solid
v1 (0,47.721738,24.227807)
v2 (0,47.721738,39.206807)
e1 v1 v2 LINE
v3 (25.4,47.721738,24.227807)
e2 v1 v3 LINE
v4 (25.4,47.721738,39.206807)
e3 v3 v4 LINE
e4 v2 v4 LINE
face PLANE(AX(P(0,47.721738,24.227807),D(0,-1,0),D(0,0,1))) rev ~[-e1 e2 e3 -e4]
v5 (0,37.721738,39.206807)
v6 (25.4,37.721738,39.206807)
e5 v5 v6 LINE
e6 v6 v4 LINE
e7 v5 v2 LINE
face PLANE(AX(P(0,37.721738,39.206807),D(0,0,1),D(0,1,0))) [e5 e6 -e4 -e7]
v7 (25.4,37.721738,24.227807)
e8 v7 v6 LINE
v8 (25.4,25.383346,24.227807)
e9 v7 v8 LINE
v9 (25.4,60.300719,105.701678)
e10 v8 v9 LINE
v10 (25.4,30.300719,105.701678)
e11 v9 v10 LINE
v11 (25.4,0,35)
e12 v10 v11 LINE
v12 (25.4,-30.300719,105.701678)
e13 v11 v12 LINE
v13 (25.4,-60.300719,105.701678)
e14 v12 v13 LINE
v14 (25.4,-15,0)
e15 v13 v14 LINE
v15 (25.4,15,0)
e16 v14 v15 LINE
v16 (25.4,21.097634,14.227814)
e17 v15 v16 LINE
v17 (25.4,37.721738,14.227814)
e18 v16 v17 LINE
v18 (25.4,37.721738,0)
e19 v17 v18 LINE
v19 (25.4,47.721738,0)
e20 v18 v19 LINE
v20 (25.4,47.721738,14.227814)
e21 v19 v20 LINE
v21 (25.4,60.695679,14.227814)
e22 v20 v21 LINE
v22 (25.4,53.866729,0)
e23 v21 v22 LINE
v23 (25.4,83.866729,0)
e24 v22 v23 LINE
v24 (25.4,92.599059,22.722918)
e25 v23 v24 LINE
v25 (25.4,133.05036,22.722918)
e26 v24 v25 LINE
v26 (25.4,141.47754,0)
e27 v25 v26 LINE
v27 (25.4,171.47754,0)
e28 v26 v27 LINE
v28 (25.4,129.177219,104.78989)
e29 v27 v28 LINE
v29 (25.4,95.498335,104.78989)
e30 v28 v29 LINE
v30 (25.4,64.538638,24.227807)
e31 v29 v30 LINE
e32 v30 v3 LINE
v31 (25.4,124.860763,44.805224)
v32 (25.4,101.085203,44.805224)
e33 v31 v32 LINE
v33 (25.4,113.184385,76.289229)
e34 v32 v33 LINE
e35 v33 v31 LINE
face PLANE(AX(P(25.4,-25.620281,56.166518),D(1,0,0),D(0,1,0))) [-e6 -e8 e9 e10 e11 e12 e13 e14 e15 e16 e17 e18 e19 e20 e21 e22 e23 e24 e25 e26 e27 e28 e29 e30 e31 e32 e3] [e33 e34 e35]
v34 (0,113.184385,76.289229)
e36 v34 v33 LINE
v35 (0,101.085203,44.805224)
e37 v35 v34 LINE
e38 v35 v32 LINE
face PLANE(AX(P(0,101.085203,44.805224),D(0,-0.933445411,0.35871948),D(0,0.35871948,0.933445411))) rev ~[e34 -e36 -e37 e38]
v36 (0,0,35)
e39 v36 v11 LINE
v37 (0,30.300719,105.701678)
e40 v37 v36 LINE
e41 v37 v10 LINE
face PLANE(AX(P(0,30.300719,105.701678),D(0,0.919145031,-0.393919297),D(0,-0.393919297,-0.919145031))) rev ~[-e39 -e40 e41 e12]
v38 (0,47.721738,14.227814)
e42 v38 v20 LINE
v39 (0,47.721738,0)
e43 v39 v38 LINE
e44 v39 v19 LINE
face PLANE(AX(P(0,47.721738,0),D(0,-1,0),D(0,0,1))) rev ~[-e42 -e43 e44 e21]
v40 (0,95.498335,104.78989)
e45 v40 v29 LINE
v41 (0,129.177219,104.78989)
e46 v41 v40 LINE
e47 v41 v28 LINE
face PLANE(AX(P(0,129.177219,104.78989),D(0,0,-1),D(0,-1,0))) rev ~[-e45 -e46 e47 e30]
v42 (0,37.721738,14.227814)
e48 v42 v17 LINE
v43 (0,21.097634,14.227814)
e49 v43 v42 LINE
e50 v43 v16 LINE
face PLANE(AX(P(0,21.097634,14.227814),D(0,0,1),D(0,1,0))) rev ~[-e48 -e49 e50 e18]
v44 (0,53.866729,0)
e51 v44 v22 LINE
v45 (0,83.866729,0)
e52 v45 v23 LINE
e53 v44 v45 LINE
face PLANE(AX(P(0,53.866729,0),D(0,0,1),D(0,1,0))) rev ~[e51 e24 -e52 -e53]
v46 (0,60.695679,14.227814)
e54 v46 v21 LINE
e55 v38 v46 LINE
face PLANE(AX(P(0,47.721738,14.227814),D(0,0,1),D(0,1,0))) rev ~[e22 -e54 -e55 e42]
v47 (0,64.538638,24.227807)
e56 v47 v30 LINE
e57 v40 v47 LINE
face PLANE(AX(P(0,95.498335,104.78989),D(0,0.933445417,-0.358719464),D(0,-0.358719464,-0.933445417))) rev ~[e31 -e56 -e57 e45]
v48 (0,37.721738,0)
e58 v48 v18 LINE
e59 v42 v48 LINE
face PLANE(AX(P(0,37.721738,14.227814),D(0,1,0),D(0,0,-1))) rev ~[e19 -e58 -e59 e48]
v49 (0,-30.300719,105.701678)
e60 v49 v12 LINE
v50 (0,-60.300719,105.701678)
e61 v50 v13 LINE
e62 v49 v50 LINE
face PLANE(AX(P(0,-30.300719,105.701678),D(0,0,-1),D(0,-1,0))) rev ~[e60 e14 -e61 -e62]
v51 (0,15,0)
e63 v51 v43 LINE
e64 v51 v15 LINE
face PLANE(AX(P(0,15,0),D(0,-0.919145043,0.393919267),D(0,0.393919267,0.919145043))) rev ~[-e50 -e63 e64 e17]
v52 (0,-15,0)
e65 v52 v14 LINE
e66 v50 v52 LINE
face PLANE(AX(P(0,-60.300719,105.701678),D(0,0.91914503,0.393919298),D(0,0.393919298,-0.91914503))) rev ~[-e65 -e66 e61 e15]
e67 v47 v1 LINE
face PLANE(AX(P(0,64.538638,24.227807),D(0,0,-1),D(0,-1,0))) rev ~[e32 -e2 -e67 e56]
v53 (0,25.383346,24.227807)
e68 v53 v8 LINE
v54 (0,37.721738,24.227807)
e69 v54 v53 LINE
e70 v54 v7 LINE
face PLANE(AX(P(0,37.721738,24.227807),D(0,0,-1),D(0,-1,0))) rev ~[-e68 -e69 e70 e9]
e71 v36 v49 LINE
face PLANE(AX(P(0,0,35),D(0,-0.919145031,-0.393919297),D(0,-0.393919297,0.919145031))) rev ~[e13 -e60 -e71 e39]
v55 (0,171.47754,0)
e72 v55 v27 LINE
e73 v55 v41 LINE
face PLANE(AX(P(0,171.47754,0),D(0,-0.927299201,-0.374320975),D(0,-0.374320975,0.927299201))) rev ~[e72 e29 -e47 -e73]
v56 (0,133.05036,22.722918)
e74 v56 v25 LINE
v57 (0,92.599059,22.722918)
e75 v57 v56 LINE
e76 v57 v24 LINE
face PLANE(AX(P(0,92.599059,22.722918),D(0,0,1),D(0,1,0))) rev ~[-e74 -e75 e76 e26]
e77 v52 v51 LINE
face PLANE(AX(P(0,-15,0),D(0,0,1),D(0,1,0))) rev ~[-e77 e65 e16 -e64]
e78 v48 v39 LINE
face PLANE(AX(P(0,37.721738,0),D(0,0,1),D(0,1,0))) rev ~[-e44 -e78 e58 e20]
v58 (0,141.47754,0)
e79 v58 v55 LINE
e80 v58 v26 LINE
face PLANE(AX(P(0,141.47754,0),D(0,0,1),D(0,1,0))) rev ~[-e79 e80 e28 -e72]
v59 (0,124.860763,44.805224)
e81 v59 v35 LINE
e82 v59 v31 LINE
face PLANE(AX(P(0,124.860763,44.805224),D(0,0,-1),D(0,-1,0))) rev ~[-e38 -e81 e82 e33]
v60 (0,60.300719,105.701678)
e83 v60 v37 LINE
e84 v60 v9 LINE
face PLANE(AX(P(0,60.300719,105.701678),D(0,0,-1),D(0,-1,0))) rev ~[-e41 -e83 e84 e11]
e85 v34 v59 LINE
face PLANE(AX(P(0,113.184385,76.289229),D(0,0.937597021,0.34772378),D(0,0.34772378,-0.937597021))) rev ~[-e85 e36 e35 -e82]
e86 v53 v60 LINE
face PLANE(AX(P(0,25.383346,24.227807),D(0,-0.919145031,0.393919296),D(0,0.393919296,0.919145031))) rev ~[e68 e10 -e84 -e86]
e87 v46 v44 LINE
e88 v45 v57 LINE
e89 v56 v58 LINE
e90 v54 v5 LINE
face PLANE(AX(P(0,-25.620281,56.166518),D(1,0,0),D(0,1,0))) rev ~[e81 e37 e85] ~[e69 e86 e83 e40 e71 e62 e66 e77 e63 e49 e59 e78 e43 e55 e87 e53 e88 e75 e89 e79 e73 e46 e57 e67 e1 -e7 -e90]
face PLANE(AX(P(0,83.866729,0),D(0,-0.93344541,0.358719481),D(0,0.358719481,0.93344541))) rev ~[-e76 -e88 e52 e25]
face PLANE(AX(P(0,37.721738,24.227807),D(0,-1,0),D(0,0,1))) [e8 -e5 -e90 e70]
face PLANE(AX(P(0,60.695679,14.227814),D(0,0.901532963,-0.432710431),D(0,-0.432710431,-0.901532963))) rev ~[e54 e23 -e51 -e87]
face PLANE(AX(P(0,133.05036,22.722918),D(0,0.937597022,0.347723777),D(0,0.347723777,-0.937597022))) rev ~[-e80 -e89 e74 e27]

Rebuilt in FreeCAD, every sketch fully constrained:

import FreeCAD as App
import Part
import Sketcher

V = App.Vector

doc = App.newDocument("Part")
body = doc.addObject("PartDesign::Body", "Body")

sketch1 = body.newObject("Sketcher::SketchObject", "Sketch")
sketch1.AttachmentSupport = (doc.getObject("YZ_Plane"), [""])
sketch1.MapMode = "FlatFace"
sketch1.addGeometry([
    Part.LineSegment(V(-15, 0, 0), V(15, 0, 0)),
    Part.LineSegment(V(15, 0, 0), V(21.097634, 14.227814, 0)),
    Part.LineSegment(V(21.097634, 14.227814, 0), V(37.721738, 14.227814, 0)),
    Part.LineSegment(V(37.721738, 14.227814, 0), V(37.721738, 0, 0)),
    Part.LineSegment(V(37.721738, 0, 0), V(47.721738, 0, 0)),
    Part.LineSegment(V(47.721738, 0, 0), V(47.721738, 14.227814, 0)),
    Part.LineSegment(V(47.721738, 14.227814, 0), V(60.695679, 14.227814, 0)),
    Part.LineSegment(V(60.695679, 14.227814, 0), V(53.866729, 0, 0)),
    Part.LineSegment(V(53.866729, 0, 0), V(83.866729, 0, 0)),
    Part.LineSegment(V(83.866729, 0, 0), V(92.599059, 22.722918, 0)),
    Part.LineSegment(V(92.599059, 22.722918, 0), V(133.05036, 22.722918, 0)),
    Part.LineSegment(V(133.05036, 22.722918, 0), V(141.47754, 0, 0)),
    Part.LineSegment(V(141.47754, 0, 0), V(171.47754, 0, 0)),
    Part.LineSegment(V(171.47754, 0, 0), V(129.177219, 104.78989, 0)),
    Part.LineSegment(V(129.177219, 104.78989, 0), V(95.498335, 104.78989, 0)),
    Part.LineSegment(V(95.498335, 104.78989, 0), V(64.538638, 24.227807, 0)),
    Part.LineSegment(V(64.538638, 24.227807, 0), V(47.721738, 24.227807, 0)),
    Part.LineSegment(V(47.721738, 24.227807, 0), V(47.721738, 39.206807, 0)),
    Part.LineSegment(V(47.721738, 39.206807, 0), V(37.721738, 39.206807, 0)),
    Part.LineSegment(V(37.721738, 39.206807, 0), V(37.721738, 24.227807, 0)),
    Part.LineSegment(V(37.721738, 24.227807, 0), V(25.383346, 24.227807, 0)),
    Part.LineSegment(V(25.383346, 24.227807, 0), V(60.300719, 105.701678, 0)),
    Part.LineSegment(V(60.300719, 105.701678, 0), V(30.300719, 105.701678, 0)),
    Part.LineSegment(V(30.300719, 105.701678, 0), V(0, 35, 0)),
    Part.LineSegment(V(0, 35, 0), V(-30.300719, 105.701678, 0)),
    Part.LineSegment(V(-30.300719, 105.701678, 0), V(-60.300719, 105.701678, 0)),
    Part.LineSegment(V(-60.300719, 105.701678, 0), V(-15, 0, 0)),
    Part.LineSegment(V(101.085203, 44.805224, 0), V(113.184385, 76.289229, 0)),
    Part.LineSegment(V(113.184385, 76.289229, 0), V(124.860763, 44.805224, 0)),
    Part.LineSegment(V(124.860763, 44.805224, 0), V(101.085203, 44.805224, 0)),
], False)
sketch1.addConstraint([
    Sketcher.Constraint("Coincident", 0, 2, 1, 1),
    Sketcher.Constraint("Coincident", 1, 2, 2, 1),
    Sketcher.Constraint("Coincident", 2, 2, 3, 1),
    Sketcher.Constraint("Coincident", 3, 2, 4, 1),
    Sketcher.Constraint("Coincident", 4, 2, 5, 1),
    Sketcher.Constraint("Coincident", 5, 2, 6, 1),
    Sketcher.Constraint("Coincident", 6, 2, 7, 1),
    Sketcher.Constraint("Coincident", 7, 2, 8, 1),
    Sketcher.Constraint("Coincident", 8, 2, 9, 1),
    Sketcher.Constraint("Coincident", 9, 2, 10, 1),
    Sketcher.Constraint("Coincident", 10, 2, 11, 1),
    Sketcher.Constraint("Coincident", 11, 2, 12, 1),
    Sketcher.Constraint("Coincident", 12, 2, 13, 1),
    Sketcher.Constraint("Coincident", 13, 2, 14, 1),
    Sketcher.Constraint("Coincident", 14, 2, 15, 1),
    Sketcher.Constraint("Coincident", 15, 2, 16, 1),
    Sketcher.Constraint("Coincident", 16, 2, 17, 1),
    Sketcher.Constraint("Coincident", 17, 2, 18, 1),
    Sketcher.Constraint("Coincident", 18, 2, 19, 1),
    Sketcher.Constraint("Coincident", 19, 2, 20, 1),
    Sketcher.Constraint("Coincident", 20, 2, 21, 1),
    Sketcher.Constraint("Coincident", 21, 2, 22, 1),
    Sketcher.Constraint("Coincident", 22, 2, 23, 1),
    Sketcher.Constraint("Coincident", 23, 2, 24, 1),
    Sketcher.Constraint("Coincident", 24, 2, 25, 1),
    Sketcher.Constraint("Coincident", 25, 2, 26, 1),
    Sketcher.Constraint("Coincident", 26, 2, 0, 1),
    Sketcher.Constraint("Coincident", 27, 2, 28, 1),
    Sketcher.Constraint("Coincident", 28, 2, 29, 1),
    Sketcher.Constraint("Coincident", 29, 2, 27, 1),
    Sketcher.Constraint("Horizontal", 0),
    Sketcher.Constraint("Horizontal", 2),
    Sketcher.Constraint("Vertical", 3),
    Sketcher.Constraint("Horizontal", 4),
    Sketcher.Constraint("Vertical", 5),
    Sketcher.Constraint("Horizontal", 6),
    Sketcher.Constraint("Horizontal", 8),
    Sketcher.Constraint("Horizontal", 10),
    Sketcher.Constraint("Horizontal", 12),
    Sketcher.Constraint("Horizontal", 14),
    Sketcher.Constraint("Horizontal", 16),
    Sketcher.Constraint("Vertical", 17),
    Sketcher.Constraint("Horizontal", 18),
    Sketcher.Constraint("Vertical", 19),
    Sketcher.Constraint("Horizontal", 20),
    Sketcher.Constraint("Horizontal", 22),
    Sketcher.Constraint("Horizontal", 25),
    Sketcher.Constraint("Horizontal", 29),
    Sketcher.Constraint("Symmetric", 0, 2, 26, 2, -1, 1),
    Sketcher.Constraint("Symmetric", 22, 2, 24, 2, -2),
    Sketcher.Constraint("PointOnObject", 3, 2, -1),
    Sketcher.Constraint("PointOnObject", 7, 2, -1),
    Sketcher.Constraint("PointOnObject", 11, 2, -1),
    Sketcher.Constraint("PointOnObject", 23, 2, -2),
    Sketcher.Constraint("Parallel", 9, 15),
    Sketcher.Constraint("Parallel", 1, 21),
    Sketcher.Constraint("Parallel", 21, 23),
    Sketcher.Constraint("Parallel", 24, 26),
    Sketcher.Constraint("Parallel", 15, 27),
    Sketcher.Constraint("Parallel", 11, 28),
    Sketcher.Constraint("Horizontal", 2, 2, 5, 2),
    Sketcher.Constraint("Horizontal", 16, 2, 19, 2),
    Sketcher.Constraint("Vertical", 5, 2, 16, 2),
    Sketcher.Constraint("Vertical", 3, 2, 18, 2),
    Sketcher.Constraint("Equal", 0, 8),
    Sketcher.Constraint("Equal", 8, 12),
    Sketcher.Constraint("Equal", 12, 22),
    Sketcher.Constraint("Equal", 22, 25),
    Sketcher.Constraint("DistanceX", 0, 1, 0, 2, 30.0),
    Sketcher.Constraint("DistanceX", 4, 1, 4, 2, 10.0),
    Sketcher.Constraint("Distance", 26, 114.999999),
    Sketcher.Constraint("DistanceY", -1, 1, 23, 2, 35.0),
    Sketcher.Constraint("DistanceY", 17, 1, 17, 2, 14.979),
    Sketcher.Constraint("DistanceX", 10, 1, 10, 2, 40.451301),
    Sketcher.Constraint("DistanceX", 16, 2, 16, 1, 16.8169),
    Sketcher.Constraint("Distance", 1, 15.4794),
    Sketcher.Constraint("Distance", 7, 15.781801),
    Sketcher.Constraint("DistanceX", 6, 1, 6, 2, 12.973941),
    Sketcher.Constraint("DistanceX", 29, 2, 29, 1, 23.77556),
    Sketcher.Constraint("DistanceX", 21, 2, 13, 2, 68.8765),
    Sketcher.Constraint("Distance", 9, 24.34306),
    Sketcher.Constraint("Distance", 11, 24.235271),
    Sketcher.Constraint("Distance", 13, 113.005479),
    Sketcher.Constraint("Distance", 21, 88.640931),
    Sketcher.Constraint("DistanceX", 2, 1, 2, 2, 16.624104),
    Sketcher.Constraint("DistanceX", 14, 2, 14, 1, 33.678884),
    Sketcher.Constraint("DistanceY", -1, 1, 27, 2, 76.289229),
    Sketcher.Constraint("DistanceX", 14, 2, 27, 2, 17.68605),
])
pad1 = body.newObject("PartDesign::Pad", "Pad")
pad1.Profile = sketch1
pad1.Length = 25.4

doc.recompute()
